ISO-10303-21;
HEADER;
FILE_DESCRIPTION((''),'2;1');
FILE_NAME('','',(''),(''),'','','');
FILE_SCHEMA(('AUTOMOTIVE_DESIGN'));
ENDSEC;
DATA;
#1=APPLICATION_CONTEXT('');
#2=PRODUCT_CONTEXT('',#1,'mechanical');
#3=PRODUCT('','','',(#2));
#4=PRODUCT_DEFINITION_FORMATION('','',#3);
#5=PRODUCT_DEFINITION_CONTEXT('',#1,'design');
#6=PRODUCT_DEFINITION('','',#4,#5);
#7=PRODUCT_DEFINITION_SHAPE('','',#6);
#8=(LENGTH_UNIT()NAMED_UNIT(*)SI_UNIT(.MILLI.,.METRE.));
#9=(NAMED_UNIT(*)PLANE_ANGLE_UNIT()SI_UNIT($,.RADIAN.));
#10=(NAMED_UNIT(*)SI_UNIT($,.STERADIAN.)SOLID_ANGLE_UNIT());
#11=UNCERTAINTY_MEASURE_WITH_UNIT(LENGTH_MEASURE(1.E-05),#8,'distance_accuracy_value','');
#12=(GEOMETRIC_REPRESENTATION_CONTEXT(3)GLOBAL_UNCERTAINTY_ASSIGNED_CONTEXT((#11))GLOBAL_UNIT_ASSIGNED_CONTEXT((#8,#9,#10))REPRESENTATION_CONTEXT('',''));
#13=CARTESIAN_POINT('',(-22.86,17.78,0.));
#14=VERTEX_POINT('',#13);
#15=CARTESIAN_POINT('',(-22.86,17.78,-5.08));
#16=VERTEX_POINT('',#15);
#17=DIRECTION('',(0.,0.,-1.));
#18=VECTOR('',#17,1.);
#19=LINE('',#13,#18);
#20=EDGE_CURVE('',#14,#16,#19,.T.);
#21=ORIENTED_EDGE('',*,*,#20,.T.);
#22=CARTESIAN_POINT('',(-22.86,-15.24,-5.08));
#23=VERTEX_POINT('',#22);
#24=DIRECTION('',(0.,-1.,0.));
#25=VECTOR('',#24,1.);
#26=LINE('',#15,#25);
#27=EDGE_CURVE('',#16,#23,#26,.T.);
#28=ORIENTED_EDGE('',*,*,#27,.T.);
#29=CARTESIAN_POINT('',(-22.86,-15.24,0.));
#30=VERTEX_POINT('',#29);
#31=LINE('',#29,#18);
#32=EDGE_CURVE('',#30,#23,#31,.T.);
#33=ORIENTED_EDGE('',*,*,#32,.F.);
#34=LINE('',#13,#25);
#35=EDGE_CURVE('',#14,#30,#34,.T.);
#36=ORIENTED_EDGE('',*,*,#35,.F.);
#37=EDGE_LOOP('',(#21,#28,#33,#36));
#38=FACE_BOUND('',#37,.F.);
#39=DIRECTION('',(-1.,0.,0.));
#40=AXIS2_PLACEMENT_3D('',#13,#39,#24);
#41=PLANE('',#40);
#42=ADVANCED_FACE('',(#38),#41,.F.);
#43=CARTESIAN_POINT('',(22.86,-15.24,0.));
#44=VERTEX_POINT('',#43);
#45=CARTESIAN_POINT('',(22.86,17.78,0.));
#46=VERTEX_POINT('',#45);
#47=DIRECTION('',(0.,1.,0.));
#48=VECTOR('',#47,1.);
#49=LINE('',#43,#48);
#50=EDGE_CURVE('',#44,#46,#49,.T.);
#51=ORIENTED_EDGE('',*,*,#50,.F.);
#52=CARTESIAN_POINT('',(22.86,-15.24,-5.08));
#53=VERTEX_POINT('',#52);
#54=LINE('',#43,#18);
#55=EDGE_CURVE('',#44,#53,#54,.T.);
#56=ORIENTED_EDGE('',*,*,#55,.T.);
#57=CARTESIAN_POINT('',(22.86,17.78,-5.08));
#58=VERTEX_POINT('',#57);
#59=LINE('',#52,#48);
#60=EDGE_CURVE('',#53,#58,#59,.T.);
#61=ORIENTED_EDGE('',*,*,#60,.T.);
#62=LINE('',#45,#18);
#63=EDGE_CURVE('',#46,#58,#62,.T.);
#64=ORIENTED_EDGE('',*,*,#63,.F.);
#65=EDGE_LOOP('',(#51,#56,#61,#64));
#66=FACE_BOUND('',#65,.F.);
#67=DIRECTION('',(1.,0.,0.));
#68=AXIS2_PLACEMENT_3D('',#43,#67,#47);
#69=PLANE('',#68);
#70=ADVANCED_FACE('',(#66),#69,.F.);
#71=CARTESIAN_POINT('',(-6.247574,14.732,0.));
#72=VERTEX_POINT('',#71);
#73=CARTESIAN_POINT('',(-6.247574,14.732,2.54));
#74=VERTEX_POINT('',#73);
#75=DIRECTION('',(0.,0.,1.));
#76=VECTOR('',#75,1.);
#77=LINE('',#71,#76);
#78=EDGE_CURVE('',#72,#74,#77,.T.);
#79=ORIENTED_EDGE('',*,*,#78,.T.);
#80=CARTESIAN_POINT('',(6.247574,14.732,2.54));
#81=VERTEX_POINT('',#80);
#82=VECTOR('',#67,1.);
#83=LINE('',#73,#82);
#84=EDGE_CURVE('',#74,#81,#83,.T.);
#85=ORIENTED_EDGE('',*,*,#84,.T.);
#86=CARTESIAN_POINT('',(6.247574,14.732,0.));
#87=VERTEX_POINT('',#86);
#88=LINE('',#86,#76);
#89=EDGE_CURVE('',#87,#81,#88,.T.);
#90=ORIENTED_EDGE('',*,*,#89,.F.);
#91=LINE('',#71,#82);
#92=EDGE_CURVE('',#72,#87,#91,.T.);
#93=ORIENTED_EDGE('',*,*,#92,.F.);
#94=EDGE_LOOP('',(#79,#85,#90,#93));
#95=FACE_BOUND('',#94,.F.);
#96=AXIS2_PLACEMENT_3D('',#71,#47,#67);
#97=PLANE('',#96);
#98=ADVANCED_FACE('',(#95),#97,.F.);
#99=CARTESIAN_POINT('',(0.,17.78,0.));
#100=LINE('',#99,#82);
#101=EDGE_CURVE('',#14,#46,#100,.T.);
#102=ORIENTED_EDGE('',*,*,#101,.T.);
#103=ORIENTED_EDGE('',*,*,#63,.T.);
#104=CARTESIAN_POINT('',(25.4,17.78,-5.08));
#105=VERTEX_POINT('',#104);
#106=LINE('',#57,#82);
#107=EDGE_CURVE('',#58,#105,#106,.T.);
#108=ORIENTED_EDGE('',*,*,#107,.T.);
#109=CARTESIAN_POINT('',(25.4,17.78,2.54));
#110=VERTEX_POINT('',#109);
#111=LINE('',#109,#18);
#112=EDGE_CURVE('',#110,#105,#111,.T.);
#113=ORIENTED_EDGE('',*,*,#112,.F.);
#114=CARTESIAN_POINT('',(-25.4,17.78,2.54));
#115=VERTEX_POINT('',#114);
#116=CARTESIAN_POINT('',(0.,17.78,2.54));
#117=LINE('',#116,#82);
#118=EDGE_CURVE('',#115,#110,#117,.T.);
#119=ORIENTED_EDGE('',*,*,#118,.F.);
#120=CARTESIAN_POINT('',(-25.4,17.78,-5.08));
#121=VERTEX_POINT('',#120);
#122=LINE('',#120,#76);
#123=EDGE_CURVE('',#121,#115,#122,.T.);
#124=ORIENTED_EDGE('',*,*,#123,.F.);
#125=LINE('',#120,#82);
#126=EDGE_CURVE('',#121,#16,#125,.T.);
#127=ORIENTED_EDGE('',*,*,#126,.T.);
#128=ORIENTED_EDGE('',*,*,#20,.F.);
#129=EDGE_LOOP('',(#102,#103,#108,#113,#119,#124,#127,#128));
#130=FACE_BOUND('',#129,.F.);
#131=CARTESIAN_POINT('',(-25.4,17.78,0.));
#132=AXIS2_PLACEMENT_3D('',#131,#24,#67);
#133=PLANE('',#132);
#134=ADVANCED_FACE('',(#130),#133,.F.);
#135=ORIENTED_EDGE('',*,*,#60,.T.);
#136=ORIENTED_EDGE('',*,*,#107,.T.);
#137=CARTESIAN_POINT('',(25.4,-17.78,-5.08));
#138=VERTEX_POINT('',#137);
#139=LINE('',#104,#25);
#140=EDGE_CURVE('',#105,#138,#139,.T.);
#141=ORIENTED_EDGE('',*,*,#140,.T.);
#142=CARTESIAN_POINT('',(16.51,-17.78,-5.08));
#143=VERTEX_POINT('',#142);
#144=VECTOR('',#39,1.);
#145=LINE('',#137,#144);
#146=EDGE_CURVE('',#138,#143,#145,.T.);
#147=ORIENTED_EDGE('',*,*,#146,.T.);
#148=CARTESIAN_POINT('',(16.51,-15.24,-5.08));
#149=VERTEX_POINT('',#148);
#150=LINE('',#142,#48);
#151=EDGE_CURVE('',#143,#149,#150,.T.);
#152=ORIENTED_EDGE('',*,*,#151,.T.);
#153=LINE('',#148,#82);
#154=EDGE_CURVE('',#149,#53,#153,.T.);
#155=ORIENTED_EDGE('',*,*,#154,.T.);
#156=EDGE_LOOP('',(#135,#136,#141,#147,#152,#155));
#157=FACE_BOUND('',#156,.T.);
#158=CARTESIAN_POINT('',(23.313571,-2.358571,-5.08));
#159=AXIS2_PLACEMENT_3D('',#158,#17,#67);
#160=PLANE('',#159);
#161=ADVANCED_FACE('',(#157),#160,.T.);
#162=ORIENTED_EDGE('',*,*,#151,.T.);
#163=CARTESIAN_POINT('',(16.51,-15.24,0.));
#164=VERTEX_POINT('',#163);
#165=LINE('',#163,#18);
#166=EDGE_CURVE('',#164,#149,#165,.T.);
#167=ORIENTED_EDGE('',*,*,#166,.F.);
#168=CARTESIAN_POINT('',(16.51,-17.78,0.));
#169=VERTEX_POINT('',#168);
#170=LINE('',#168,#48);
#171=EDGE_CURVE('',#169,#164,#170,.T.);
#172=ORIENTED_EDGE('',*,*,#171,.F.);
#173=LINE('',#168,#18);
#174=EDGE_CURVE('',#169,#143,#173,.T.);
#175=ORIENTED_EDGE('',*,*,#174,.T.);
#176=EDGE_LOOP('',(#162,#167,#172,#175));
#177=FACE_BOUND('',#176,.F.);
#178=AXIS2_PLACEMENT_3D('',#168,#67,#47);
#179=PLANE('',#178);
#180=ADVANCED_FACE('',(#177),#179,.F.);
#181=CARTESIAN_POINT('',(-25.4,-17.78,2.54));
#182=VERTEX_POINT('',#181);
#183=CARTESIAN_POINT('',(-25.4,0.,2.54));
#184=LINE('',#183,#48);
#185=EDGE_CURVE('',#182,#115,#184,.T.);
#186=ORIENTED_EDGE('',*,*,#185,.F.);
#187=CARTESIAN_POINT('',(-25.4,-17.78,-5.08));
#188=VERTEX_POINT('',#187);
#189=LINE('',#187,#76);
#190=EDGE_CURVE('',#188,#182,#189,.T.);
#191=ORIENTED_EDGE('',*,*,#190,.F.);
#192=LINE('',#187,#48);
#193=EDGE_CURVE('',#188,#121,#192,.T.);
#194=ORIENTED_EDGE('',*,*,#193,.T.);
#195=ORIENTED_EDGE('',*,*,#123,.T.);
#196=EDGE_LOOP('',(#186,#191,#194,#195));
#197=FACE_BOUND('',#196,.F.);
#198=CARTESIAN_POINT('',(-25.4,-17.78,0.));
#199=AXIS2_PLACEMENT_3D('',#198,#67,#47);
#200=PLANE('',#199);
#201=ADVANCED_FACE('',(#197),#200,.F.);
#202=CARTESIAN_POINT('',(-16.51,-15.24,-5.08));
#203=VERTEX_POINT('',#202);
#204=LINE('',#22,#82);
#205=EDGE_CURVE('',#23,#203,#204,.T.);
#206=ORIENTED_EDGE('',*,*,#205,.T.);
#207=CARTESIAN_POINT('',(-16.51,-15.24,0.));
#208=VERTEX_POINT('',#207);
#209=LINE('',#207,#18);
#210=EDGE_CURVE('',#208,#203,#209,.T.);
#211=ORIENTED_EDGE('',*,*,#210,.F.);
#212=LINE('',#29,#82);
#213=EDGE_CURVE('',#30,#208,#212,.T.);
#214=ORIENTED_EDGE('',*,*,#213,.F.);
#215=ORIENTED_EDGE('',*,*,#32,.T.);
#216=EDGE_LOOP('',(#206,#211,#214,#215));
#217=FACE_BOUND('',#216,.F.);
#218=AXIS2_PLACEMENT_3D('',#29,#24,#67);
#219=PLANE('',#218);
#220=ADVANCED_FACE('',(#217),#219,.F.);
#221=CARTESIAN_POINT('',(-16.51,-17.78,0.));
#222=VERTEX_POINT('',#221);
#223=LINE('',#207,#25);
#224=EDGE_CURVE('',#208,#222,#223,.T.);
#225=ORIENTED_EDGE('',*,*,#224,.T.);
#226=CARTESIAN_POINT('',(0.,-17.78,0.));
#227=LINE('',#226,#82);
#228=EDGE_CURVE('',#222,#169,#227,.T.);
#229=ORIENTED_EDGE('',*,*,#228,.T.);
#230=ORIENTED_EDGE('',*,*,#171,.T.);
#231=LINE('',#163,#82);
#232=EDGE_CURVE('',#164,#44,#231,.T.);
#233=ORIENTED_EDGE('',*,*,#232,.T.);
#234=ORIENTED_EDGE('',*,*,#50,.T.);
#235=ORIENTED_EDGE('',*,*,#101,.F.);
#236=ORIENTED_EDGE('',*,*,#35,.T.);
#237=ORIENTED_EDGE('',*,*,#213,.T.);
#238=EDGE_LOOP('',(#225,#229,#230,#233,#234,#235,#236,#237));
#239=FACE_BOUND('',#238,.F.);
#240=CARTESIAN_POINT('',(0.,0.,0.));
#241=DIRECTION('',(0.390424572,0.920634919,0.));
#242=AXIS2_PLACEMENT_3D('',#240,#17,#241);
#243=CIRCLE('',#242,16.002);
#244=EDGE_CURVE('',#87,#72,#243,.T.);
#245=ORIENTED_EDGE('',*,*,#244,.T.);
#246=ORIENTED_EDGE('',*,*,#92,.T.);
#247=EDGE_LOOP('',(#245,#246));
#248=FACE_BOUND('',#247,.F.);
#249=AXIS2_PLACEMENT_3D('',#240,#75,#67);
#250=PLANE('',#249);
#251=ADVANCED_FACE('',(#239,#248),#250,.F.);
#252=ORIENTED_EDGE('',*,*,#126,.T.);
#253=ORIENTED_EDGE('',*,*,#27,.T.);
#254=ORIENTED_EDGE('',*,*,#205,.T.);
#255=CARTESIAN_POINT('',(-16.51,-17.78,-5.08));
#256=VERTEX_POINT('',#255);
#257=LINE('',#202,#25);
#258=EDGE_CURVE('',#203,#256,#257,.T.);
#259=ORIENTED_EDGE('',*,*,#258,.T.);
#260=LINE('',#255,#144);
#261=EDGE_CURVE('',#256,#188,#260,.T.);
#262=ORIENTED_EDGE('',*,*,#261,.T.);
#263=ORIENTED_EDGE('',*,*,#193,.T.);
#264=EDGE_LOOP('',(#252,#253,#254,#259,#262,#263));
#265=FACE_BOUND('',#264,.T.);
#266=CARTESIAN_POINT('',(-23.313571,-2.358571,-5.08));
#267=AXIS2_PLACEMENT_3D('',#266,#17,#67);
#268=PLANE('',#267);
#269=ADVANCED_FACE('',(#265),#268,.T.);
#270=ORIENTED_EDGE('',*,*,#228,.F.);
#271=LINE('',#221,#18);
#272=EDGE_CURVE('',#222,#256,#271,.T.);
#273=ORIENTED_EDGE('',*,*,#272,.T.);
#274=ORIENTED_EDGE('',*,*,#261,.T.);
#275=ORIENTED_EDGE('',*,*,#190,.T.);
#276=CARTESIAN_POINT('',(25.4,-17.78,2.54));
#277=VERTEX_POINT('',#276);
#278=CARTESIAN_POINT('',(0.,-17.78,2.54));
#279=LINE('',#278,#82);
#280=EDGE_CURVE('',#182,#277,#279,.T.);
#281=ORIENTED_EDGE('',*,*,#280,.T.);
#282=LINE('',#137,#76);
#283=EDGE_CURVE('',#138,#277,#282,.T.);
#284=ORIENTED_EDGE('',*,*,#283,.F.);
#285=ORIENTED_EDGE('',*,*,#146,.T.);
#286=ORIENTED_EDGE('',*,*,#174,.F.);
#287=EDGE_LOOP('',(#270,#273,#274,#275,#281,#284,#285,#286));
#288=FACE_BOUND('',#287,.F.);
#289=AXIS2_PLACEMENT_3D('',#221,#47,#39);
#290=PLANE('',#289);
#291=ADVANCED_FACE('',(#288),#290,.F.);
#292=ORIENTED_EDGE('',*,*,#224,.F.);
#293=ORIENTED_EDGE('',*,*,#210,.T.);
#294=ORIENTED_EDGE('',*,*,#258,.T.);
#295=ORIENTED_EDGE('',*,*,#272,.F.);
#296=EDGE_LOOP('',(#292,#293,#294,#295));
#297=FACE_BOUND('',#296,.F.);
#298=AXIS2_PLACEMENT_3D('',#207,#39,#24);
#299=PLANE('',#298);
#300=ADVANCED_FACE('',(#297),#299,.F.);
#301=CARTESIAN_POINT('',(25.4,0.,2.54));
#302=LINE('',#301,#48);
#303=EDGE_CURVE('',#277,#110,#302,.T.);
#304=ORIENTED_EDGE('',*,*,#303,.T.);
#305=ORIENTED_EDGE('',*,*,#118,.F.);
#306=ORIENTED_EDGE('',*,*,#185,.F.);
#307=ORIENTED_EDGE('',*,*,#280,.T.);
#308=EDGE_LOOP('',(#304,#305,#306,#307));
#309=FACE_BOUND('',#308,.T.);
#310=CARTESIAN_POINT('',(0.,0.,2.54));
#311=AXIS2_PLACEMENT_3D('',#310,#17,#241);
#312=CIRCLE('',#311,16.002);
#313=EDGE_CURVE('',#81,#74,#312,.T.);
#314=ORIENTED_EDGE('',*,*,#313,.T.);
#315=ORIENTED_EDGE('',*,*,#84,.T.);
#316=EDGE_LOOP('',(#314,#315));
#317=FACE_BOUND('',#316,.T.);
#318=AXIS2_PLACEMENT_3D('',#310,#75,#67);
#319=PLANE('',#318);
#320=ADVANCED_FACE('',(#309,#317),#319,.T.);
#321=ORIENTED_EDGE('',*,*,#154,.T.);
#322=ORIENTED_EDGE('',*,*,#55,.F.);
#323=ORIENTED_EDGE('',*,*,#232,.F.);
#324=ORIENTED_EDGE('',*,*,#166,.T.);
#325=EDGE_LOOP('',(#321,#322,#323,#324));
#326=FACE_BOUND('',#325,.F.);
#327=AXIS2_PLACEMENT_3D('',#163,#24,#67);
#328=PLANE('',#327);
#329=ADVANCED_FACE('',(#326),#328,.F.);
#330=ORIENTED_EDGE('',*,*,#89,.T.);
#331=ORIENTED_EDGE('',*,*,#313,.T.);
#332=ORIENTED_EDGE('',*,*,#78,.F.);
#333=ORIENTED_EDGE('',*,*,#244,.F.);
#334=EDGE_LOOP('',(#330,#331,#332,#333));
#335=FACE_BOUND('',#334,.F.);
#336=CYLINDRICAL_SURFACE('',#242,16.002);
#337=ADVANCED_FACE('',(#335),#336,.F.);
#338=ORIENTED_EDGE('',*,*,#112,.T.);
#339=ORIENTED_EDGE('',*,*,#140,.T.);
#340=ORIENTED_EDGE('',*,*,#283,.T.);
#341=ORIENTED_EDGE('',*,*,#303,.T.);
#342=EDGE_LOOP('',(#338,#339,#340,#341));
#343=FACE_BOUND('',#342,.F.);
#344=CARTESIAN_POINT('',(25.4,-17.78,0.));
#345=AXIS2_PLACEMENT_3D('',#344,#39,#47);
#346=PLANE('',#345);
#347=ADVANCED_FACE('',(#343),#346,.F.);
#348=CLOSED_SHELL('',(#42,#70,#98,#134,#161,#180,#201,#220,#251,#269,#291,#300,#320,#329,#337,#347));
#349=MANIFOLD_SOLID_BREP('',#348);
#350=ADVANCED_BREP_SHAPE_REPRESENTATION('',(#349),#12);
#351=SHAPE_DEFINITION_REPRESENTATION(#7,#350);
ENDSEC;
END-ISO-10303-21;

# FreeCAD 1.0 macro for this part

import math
import FreeCAD as App
import Part
import Sketcher

V = App.Vector
Q = App.Units.Quantity

doc = App.newDocument("Part")
body = doc.addObject("PartDesign::Body", "Body")

sketch1 = body.newObject("Sketcher::SketchObject", "Sketch")
sketch1.AttachmentSupport = (doc.getObject("XY_Plane"), [""])
sketch1.MapMode = "FlatFace"
sketch1.addGeometry(Part.LineSegment(V(-25, 18, 0), V(-25, -18, 0)), False)
sketch1.addGeometry(Part.LineSegment(V(-25, -18, 0), V(25, -18, 0)), False)
sketch1.addGeometry(Part.LineSegment(V(25, -18, 0), V(25, 18, 0)), False)
sketch1.addGeometry(Part.LineSegment(V(25, 18, 0), V(-25, 18, 0)), False)
sketch1.addGeometry(Part.LineSegment(V(-6, 15, 0), V(6, 15, 0)), False)
sketch1.addGeometry(Part.ArcOfCircle(Part.Circle(V(0, 0, 0), V(0, 0, 1), 16), math.radians(113), math.radians(427)), False)
sketch1.addConstraint(Sketcher.Constraint("Coincident", 0, 2, 1, 1))
sketch1.addConstraint(Sketcher.Constraint("Coincident", 1, 2, 2, 1))
sketch1.addConstraint(Sketcher.Constraint("Coincident", 2, 2, 3, 1))
sketch1.addConstraint(Sketcher.Constraint("Coincident", 3, 2, 0, 1))
sketch1.addConstraint(Sketcher.Constraint("Coincident", 4, 1, 5, 1))
sketch1.addConstraint(Sketcher.Constraint("Coincident", 5, 2, 4, 2))
sketch1.addConstraint(Sketcher.Constraint("Vertical", 0))
sketch1.addConstraint(Sketcher.Constraint("Horizontal", 1))
sketch1.addConstraint(Sketcher.Constraint("Vertical", 2))
sketch1.addConstraint(Sketcher.Constraint("Horizontal", 3))
sketch1.addConstraint(Sketcher.Constraint("Horizontal", 4))
sketch1.addConstraint(Sketcher.Constraint("Coincident", 5, 3, -1, 1))
sketch1.addConstraint(Sketcher.Constraint("Symmetric", 0, 2, 2, 2, -1, 1))
sketch1.addConstraint(Sketcher.Constraint("DistanceX", 1, 1, 1, 2, Q("2 in")))
sketch1.addConstraint(Sketcher.Constraint("Radius", 5, Q("0.63 in")))
sketch1.addConstraint(Sketcher.Constraint("DistanceY", 0, 2, 0, 1, Q("1.4 in")))
sketch1.addConstraint(Sketcher.Constraint("DistanceY", -1, 1, 4, 1, Q("0.58 in")))
pad1 = body.newObject("PartDesign::Pad", "Pad")
pad1.Profile = sketch1
pad1.Length = Q("0.1 in")

sketch2 = body.newObject("Sketcher::SketchObject", "Sketch001")
sketch2.AttachmentSupport = (doc.getObject("XY_Plane"), [""])
sketch2.MapMode = "FlatFace"
sketch2.addGeometry(Part.LineSegment(V(-25.4, 17.8, 0), V(-22.9, 17.8, 0)), False)
sketch2.addGeometry(Part.LineSegment(V(-22.9, 17.8, 0), V(-22.9, -15.2, 0)), False)
sketch2.addGeometry(Part.LineSegment(V(-22.9, -15.2, 0), V(-16.5, -15.2, 0)), False)
sketch2.addGeometry(Part.LineSegment(V(-16.5, -15.2, 0), V(-16.5, -17.8, 0)), False)
sketch2.addGeometry(Part.LineSegment(V(-16.5, -17.8, 0), V(-25.4, -17.8, 0)), False)
sketch2.addGeometry(Part.LineSegment(V(-25.4, -17.8, 0), V(-25.4, 17.8, 0)), False)
sketch2.addGeometry(Part.LineSegment(V(22.9, 17.8, 0), V(25.4, 17.8, 0)), False)
sketch2.addGeometry(Part.LineSegment(V(25.4, 17.8, 0), V(25.4, -17.8, 0)), False)
sketch2.addGeometry(Part.LineSegment(V(25.4, -17.8, 0), V(16.5, -17.8, 0)), False)
sketch2.addGeometry(Part.LineSegment(V(16.5, -17.8, 0), V(16.5, -15.2, 0)), False)
sketch2.addGeometry(Part.LineSegment(V(16.5, -15.2, 0), V(22.9, -15.2, 0)), False)
sketch2.addGeometry(Part.LineSegment(V(22.9, -15.2, 0), V(22.9, 17.8, 0)), False)
sketch2.addConstraint(Sketcher.Constraint("Coincident", 0, 2, 1, 1))
sketch2.addConstraint(Sketcher.Constraint("Coincident", 1, 2, 2, 1))
sketch2.addConstraint(Sketcher.Constraint("Coincident", 2, 2, 3, 1))
sketch2.addConstraint(Sketcher.Constraint("Coincident", 3, 2, 4, 1))
sketch2.addConstraint(Sketcher.Constraint("Coincident", 4, 2, 5, 1))
sketch2.addConstraint(Sketcher.Constraint("Coincident", 5, 2, 0, 1))
sketch2.addConstraint(Sketcher.Constraint("Coincident", 6, 2, 7, 1))
sketch2.addConstraint(Sketcher.Constraint("Coincident", 7, 2, 8, 1))
sketch2.addConstraint(Sketcher.Constraint("Coincident", 8, 2, 9, 1))
sketch2.addConstraint(Sketcher.Constraint("Coincident", 9, 2, 10, 1))
sketch2.addConstraint(Sketcher.Constraint("Coincident", 10, 2, 11, 1))
sketch2.addConstraint(Sketcher.Constraint("Coincident", 11, 2, 6, 1))
sketch2.addConstraint(Sketcher.Constraint("Horizontal", 0))
sketch2.addConstraint(Sketcher.Constraint("Vertical", 1))
sketch2.addConstraint(Sketcher.Constraint("Horizontal", 2))
sketch2.addConstraint(Sketcher.Constraint("Vertical", 3))
sketch2.addConstraint(Sketcher.Constraint("Horizontal", 4))
sketch2.addConstraint(Sketcher.Constraint("Vertical", 5))
sketch2.addConstraint(Sketcher.Constraint("Horizontal", 6))
sketch2.addConstraint(Sketcher.Constraint("Vertical", 7))
sketch2.addConstraint(Sketcher.Constraint("Horizontal", 8))
sketch2.addConstraint(Sketcher.Constraint("Vertical", 9))
sketch2.addConstraint(Sketcher.Constraint("Horizontal", 10))
sketch2.addConstraint(Sketcher.Constraint("Vertical", 11))
sketch2.addConstraint(Sketcher.Constraint("Symmetric", 4, 2, 6, 2, -1, 1))
sketch2.addConstraint(Sketcher.Constraint("Symmetric", 3, 2, 8, 2, -2))
sketch2.addConstraint(Sketcher.Constraint("Symmetric", 1, 2, 10, 2, -2))
sketch2.addConstraint(Sketcher.Constraint("Horizontal", 5, 2, 6, 2))
sketch2.addConstraint(Sketcher.Constraint("Equal", 6, 3))
sketch2.addConstraint(Sketcher.Constraint("DistanceX", 0, 1, 0, 2, Q("0.1 in")))
sketch2.addConstraint(Sketcher.Constraint("DistanceY", 1, 2, 1, 1, Q("1.3 in")))
sketch2.addConstraint(Sketcher.Constraint("DistanceX", 4, 2, -1, 1, Q("1 in")))
sketch2.addConstraint(Sketcher.Constraint("DistanceX", 2, 1, 2, 2, Q("0.25 in")))
pad2 = body.newObject("PartDesign::Pad", "Pad001")
pad2.Profile = sketch2
pad2.Length = Q("0.2 in")
pad2.Reversed = True

doc.recompute()
